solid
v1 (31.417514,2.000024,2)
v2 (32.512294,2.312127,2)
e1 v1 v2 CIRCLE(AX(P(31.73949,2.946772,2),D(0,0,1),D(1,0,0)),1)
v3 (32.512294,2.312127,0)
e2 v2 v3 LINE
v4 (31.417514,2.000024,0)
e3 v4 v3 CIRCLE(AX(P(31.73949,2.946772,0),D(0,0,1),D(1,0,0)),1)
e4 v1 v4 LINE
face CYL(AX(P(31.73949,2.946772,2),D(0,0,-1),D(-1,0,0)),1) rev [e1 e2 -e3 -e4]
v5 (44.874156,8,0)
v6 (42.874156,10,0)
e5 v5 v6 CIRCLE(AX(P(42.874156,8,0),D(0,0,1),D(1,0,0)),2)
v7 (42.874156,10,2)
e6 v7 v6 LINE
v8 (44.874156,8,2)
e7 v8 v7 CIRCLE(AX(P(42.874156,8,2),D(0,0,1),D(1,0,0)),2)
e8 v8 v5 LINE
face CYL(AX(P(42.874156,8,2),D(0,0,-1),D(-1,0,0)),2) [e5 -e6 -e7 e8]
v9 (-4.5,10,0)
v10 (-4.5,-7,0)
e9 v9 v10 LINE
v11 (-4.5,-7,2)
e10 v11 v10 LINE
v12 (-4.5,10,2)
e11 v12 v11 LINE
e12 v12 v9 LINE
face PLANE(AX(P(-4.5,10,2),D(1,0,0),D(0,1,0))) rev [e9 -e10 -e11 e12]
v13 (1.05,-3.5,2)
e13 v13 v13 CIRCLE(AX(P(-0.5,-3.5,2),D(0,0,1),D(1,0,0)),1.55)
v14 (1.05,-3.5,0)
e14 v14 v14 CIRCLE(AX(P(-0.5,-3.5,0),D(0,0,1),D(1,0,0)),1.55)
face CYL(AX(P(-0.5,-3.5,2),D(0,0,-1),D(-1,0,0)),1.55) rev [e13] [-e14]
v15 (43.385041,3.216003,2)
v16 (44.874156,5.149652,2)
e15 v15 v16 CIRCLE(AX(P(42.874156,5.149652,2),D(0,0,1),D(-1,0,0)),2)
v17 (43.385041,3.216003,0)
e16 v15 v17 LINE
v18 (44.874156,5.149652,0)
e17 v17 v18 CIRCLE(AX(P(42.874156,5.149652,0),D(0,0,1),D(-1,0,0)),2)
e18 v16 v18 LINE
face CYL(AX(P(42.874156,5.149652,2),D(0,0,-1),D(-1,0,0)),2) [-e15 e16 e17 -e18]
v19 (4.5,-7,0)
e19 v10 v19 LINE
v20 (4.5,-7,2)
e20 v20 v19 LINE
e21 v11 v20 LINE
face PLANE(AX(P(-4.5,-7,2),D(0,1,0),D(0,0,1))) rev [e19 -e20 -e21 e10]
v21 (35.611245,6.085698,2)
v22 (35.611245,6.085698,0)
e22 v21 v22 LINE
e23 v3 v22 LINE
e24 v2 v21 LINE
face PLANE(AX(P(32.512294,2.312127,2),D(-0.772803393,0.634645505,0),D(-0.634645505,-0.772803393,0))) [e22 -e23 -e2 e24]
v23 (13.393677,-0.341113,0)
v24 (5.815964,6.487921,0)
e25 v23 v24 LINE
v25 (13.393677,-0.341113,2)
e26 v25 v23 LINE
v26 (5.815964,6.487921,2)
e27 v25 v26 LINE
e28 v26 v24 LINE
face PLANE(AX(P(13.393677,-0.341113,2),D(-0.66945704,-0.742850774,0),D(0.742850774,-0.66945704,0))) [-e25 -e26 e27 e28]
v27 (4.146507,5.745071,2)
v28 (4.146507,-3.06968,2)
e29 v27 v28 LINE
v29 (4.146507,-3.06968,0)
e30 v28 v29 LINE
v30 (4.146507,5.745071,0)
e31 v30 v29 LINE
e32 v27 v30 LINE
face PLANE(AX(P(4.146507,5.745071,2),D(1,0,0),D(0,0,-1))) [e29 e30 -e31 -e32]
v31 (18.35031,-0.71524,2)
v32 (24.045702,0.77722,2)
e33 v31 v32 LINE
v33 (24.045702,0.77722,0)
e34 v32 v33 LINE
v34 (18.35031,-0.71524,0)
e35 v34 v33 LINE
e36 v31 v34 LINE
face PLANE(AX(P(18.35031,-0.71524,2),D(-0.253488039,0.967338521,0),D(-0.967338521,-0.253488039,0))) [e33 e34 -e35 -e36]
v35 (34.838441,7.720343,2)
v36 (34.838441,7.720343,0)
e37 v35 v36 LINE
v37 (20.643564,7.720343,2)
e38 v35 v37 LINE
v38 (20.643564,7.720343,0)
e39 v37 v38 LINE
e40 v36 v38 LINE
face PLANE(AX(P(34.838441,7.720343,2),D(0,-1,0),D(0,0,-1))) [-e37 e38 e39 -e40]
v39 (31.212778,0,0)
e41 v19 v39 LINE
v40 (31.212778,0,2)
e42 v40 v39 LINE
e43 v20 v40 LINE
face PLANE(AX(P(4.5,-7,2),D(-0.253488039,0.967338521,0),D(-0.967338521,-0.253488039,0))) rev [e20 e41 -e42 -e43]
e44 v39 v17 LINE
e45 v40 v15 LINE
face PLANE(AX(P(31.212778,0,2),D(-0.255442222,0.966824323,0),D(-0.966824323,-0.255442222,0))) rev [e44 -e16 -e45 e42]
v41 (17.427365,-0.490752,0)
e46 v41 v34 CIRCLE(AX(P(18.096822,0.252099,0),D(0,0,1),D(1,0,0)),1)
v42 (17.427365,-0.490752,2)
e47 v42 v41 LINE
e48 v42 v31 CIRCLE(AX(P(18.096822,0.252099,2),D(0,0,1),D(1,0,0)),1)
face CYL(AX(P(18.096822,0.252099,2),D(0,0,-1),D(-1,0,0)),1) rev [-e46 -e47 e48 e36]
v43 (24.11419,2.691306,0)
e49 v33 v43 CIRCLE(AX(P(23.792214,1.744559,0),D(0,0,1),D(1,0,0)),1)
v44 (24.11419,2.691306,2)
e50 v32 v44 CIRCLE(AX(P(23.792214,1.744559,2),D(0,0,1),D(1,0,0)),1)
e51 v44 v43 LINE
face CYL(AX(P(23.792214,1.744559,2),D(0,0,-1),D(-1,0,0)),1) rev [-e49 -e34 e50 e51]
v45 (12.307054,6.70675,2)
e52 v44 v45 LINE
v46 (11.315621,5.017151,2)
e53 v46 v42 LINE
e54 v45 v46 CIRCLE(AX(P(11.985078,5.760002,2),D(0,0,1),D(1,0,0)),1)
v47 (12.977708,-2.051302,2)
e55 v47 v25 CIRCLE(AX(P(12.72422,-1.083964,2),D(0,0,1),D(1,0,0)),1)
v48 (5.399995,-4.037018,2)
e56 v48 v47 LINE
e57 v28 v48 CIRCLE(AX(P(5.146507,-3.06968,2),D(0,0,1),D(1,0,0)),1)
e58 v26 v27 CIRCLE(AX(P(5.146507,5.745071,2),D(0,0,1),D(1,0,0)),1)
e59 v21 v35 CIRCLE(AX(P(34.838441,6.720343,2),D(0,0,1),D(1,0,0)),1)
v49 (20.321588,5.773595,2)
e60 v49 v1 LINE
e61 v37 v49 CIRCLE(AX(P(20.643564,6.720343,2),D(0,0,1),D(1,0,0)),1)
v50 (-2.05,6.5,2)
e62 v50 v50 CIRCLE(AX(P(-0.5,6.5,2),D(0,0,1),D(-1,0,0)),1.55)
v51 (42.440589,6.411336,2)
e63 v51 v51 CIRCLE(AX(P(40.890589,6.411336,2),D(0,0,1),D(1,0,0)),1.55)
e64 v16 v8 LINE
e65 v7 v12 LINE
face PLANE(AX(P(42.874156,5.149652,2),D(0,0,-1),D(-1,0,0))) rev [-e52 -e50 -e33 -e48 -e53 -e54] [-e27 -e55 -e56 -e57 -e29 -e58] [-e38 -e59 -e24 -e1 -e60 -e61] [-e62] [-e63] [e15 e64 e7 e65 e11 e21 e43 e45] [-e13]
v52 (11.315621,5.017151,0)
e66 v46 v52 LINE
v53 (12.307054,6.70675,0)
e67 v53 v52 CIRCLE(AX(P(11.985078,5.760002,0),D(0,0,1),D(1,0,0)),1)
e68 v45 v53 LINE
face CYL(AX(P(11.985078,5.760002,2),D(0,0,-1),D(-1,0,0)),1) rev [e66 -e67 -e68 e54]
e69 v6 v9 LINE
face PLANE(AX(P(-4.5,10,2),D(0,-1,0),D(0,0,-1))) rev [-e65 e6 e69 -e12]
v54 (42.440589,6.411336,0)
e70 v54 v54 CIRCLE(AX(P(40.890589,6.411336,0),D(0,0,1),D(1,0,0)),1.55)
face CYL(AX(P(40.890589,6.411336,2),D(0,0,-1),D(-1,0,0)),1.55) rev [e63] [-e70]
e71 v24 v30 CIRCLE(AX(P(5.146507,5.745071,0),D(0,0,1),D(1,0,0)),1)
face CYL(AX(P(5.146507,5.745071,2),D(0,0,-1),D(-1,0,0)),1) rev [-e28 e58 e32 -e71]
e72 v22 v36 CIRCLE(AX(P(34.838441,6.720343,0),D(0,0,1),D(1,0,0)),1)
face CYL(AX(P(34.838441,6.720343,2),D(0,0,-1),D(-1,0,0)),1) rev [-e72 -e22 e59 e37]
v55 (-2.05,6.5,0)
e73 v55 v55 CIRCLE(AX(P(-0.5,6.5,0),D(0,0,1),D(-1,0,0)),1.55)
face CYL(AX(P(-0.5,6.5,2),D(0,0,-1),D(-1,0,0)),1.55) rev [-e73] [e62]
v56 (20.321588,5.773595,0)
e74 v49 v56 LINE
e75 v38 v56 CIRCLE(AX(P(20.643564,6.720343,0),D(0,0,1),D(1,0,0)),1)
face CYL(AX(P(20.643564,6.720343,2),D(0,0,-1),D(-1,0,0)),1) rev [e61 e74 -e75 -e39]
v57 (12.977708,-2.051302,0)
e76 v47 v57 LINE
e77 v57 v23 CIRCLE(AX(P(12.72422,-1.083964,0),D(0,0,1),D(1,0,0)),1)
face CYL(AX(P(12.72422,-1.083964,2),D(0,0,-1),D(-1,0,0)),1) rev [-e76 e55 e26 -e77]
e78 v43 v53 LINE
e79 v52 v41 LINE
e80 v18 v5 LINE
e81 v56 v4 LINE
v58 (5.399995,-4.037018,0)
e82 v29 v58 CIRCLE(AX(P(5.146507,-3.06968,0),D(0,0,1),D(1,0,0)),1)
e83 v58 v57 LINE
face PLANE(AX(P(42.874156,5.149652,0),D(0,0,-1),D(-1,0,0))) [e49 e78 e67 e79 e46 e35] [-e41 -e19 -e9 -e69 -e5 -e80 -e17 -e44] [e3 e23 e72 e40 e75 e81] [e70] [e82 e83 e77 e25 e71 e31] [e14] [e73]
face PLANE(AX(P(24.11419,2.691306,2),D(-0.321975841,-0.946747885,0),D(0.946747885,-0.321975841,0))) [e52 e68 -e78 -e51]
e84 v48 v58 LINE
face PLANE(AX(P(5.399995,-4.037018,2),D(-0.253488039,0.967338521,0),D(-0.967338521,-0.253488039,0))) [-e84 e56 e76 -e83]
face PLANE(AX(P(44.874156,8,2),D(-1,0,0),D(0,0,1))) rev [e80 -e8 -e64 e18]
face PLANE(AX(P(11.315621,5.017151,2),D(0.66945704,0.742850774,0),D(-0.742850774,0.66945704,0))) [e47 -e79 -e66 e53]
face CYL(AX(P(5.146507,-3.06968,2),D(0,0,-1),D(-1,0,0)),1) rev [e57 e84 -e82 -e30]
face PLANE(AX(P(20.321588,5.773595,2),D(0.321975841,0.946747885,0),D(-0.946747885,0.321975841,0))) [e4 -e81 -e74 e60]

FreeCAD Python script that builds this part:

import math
import FreeCAD as App
import Part
import Sketcher
Q = App.Units.Quantity

doc = App.newDocument("Part")
params = doc.addObject("Spreadsheet::Sheet", "Params")
for row, (alias, value) in enumerate([
    ("sketch1_radius", "2 mm"),
    ("sketch1_radius2", "2 mm"),
    ("sketch1_radius3", "1 mm"),
    ("sketch1_radius4", "1 mm"),
    ("sketch1_radius5", "1 mm"),
    ("pad1_length", "2 mm"),
], start=1):
    params.set(f"A{row}", alias)
    params.set(f"B{row}", "=" + value)
    params.setAlias(f"B{row}", alias)

body = doc.addObject("PartDesign::Body", "Body")

# Sketch on XY plane
sketch1 = body.newObject("Sketcher::SketchObject", "Sketch")
sketch1.AttachmentSupport = (doc.getObject("XY_Plane"), [""])
sketch1.MapMode = "FlatFace"
sketch1.addGeometry(Part.LineSegment(App.Vector(42.874156, 10, 0), App.Vector(-4.5, 10, 0)), False)
sketch1.addGeometry(Part.LineSegment(App.Vector(-4.5, 10, 0), App.Vector(-4.5, -7, 0)), False)
sketch1.addGeometry(Part.LineSegment(App.Vector(-4.5, -7, 0), App.Vector(4.5, -7, 0)), False)
sketch1.addGeometry(Part.LineSegment(App.Vector(4.5, -7, 0), App.Vector(31.212778, 0, 0)), False)
sketch1.addGeometry(Part.LineSegment(App.Vector(31.212778, 0, 0), App.Vector(43.385041, 3.216003, 0)), False)
sketch1.addGeometry(Part.ArcOfCircle(Part.Circle(App.Vector(42.874156, 5.149652, 0), App.Vector(0, 0, 1), 2), math.radians(-75.20021), math.radians(0)), False)
sketch1.addGeometry(Part.LineSegment(App.Vector(44.874156, 5.149652, 0), App.Vector(44.874156, 8, 0)), False)
sketch1.addGeometry(Part.ArcOfCircle(Part.Circle(App.Vector(42.874156, 8, 0), App.Vector(0, 0, 1), 2), math.radians(0), math.radians(90)), False)
sketch1.addGeometry(Part.Circle(App.Vector(-0.5, -3.5, 0), App.Vector(0, 0, 1), 1.55), False)
sketch1.addGeometry(Part.ArcOfCircle(Part.Circle(App.Vector(5.146507, 5.745071, 0), App.Vector(0, 0, 1), 1), math.radians(47.974827), math.radians(180)), False)
sketch1.addGeometry(Part.LineSegment(App.Vector(5.815964, 6.487921, 0), App.Vector(13.393677, -0.341113, 0)), False)
sketch1.addGeometry(Part.ArcOfCircle(Part.Circle(App.Vector(12.72422, -1.083964, 0), App.Vector(0, 0, 1), 1), math.radians(-75.315987), math.radians(47.974827)), False)
sketch1.addGeometry(Part.LineSegment(App.Vector(12.977708, -2.051302, 0), App.Vector(5.399995, -4.037018, 0)), False)
sketch1.addGeometry(Part.ArcOfCircle(Part.Circle(App.Vector(5.146507, -3.06968, 0), App.Vector(0, 0, 1), 1), math.radians(180), math.radians(284.684013)), False)
sketch1.addGeometry(Part.LineSegment(App.Vector(4.146507, -3.06968, 0), App.Vector(4.146507, 5.745071, 0)), False)
sketch1.addGeometry(Part.Circle(App.Vector(40.890589, 6.411336, 0), App.Vector(0, 0, 1), 1.55), False)
sketch1.addGeometry(Part.ArcOfCircle(Part.Circle(App.Vector(20.643564, 6.720343, 0), App.Vector(0, 0, 1), 1), math.radians(90), math.radians(251.217542)), False)
sketch1.addGeometry(Part.LineSegment(App.Vector(20.643564, 7.720343, 0), App.Vector(34.838441, 7.720343, 0)), False)
sketch1.addGeometry(Part.ArcOfCircle(Part.Circle(App.Vector(34.838441, 6.720343, 0), App.Vector(0, 0, 1), 1), math.radians(-39.393697), math.radians(90)), False)
sketch1.addGeometry(Part.LineSegment(App.Vector(35.611245, 6.085698, 0), App.Vector(32.512294, 2.312127, 0)), False)
sketch1.addGeometry(Part.ArcOfCircle(Part.Circle(App.Vector(31.73949, 2.946772, 0), App.Vector(0, 0, 1), 1), math.radians(-108.782458), math.radians(-39.393697)), False)
sketch1.addGeometry(Part.LineSegment(App.Vector(31.417514, 2.000024, 0), App.Vector(20.321588, 5.773595, 0)), False)
sketch1.addGeometry(Part.ArcOfCircle(Part.Circle(App.Vector(11.985078, 5.760002, 0), App.Vector(0, 0, 1), 1), math.radians(71.217542), math.radians(227.974827)), False)
sketch1.addGeometry(Part.LineSegment(App.Vector(12.307054, 6.70675, 0), App.Vector(24.11419, 2.691306, 0)), False)
sketch1.addGeometry(Part.ArcOfCircle(Part.Circle(App.Vector(23.792214, 1.744559, 0), App.Vector(0, 0, 1), 1), math.radians(-75.315987), math.radians(71.217543)), False)
sketch1.addGeometry(Part.LineSegment(App.Vector(24.045702, 0.77722, 0), App.Vector(18.35031, -0.71524, 0)), False)
sketch1.addGeometry(Part.ArcOfCircle(Part.Circle(App.Vector(18.096822, 0.252099, 0), App.Vector(0, 0, 1), 1), math.radians(-132.025173), math.radians(-75.315987)), False)
sketch1.addGeometry(Part.LineSegment(App.Vector(17.427365, -0.490752, 0), App.Vector(11.315621, 5.017151, 0)), False)
sketch1.addGeometry(Part.Circle(App.Vector(-0.5, 6.5, 0), App.Vector(0, 0, 1), 1.55), False)
sketch1.addConstraint(Sketcher.Constraint("Coincident", 0, 2, 1, 1))
sketch1.addConstraint(Sketcher.Constraint("Coincident", 1, 2, 2, 1))
sketch1.addConstraint(Sketcher.Constraint("Coincident", 2, 2, 3, 1))
sketch1.addConstraint(Sketcher.Constraint("Coincident", 3, 2, 4, 1))
sketch1.addConstraint(Sketcher.Constraint("Coincident", 4, 2, 5, 1))
sketch1.addConstraint(Sketcher.Constraint("Coincident", 5, 2, 6, 1))
sketch1.addConstraint(Sketcher.Constraint("Coincident", 6, 2, 7, 1))
sketch1.addConstraint(Sketcher.Constraint("Coincident", 7, 2, 0, 1))
sketch1.addConstraint(Sketcher.Constraint("Coincident", 9, 1, 10, 1))
sketch1.addConstraint(Sketcher.Constraint("Coincident", 10, 2, 11, 2))
sketch1.addConstraint(Sketcher.Constraint("Coincident", 11, 1, 12, 1))
sketch1.addConstraint(Sketcher.Constraint("Coincident", 12, 2, 13, 2))
sketch1.addConstraint(Sketcher.Constraint("Coincident", 13, 1, 14, 1))
sketch1.addConstraint(Sketcher.Constraint("Coincident", 14, 2, 9, 2))
sketch1.addConstraint(Sketcher.Constraint("Coincident", 16, 1, 17, 1))
sketch1.addConstraint(Sketcher.Constraint("Coincident", 17, 2, 18, 2))
sketch1.addConstraint(Sketcher.Constraint("Coincident", 18, 1, 19, 1))
sketch1.addConstraint(Sketcher.Constraint("Coincident", 19, 2, 20, 2))
sketch1.addConstraint(Sketcher.Constraint("Coincident", 20, 1, 21, 1))
sketch1.addConstraint(Sketcher.Constraint("Coincident", 21, 2, 16, 2))
sketch1.addConstraint(Sketcher.Constraint("Coincident", 22, 1, 23, 1))
sketch1.addConstraint(Sketcher.Constraint("Coincident", 23, 2, 24, 2))
sketch1.addConstraint(Sketcher.Constraint("Coincident", 24, 1, 25, 1))
sketch1.addConstraint(Sketcher.Constraint("Coincident", 25, 2, 26, 2))
sketch1.addConstraint(Sketcher.Constraint("Coincident", 26, 1, 27, 1))
sketch1.addConstraint(Sketcher.Constraint("Coincident", 27, 2, 22, 2))
sketch1.addConstraint(Sketcher.Constraint("Horizontal", 0))
sketch1.addConstraint(Sketcher.Constraint("Vertical", 1))
sketch1.addConstraint(Sketcher.Constraint("Horizontal", 2))
sketch1.addConstraint(Sketcher.Constraint("Vertical", 6))
sketch1.addConstraint(Sketcher.Constraint("Vertical", 14))
sketch1.addConstraint(Sketcher.Constraint("Horizontal", 17))
sketch1.addConstraint(Sketcher.Constraint("PointOnObject", 3, 2, -1))
sketch1.addConstraint(Sketcher.Constraint("Radius", 5, Q("2 mm")))
sketch1.addConstraint(Sketcher.Constraint("Radius", 7, Q("2 mm")))
sketch1.addConstraint(Sketcher.Constraint("Radius", 9, Q("1 mm")))
sketch1.addConstraint(Sketcher.Constraint("Radius", 11, Q("1 mm")))
sketch1.addConstraint(Sketcher.Constraint("Radius", 13, Q("1 mm")))
sketch1.addConstraint(Sketcher.Constraint("Radius", 16, Q("1 mm")))
sketch1.addConstraint(Sketcher.Constraint("Radius", 18, Q("1 mm")))
sketch1.addConstraint(Sketcher.Constraint("Radius", 20, Q("1 mm")))
sketch1.addConstraint(Sketcher.Constraint("Radius", 22, Q("1 mm")))
sketch1.addConstraint(Sketcher.Constraint("Radius", 24, Q("1 mm")))
sketch1.addConstraint(Sketcher.Constraint("Radius", 26, Q("1 mm")))
sketch1.addConstraint(Sketcher.Constraint("Diameter", 8, Q("3.1 mm")))
sketch1.addConstraint(Sketcher.Constraint("Diameter", 15, Q("3.1 mm")))
sketch1.addConstraint(Sketcher.Constraint("Diameter", 28, Q("3.1 mm")))
sketch1.addConstraint(Sketcher.Constraint("DistanceX", 2, 1, 2, 2, Q("9 mm")))
sketch1.addConstraint(Sketcher.Constraint("DistanceY", 1, 2, 1, 1, Q("17 mm")))
sketch1.addConstraint(Sketcher.Constraint("DistanceY", -1, 1, 7, 3, Q("8 mm")))
sketch1.addConstraint(Sketcher.Constraint("DistanceY", -1, 1, 6, 2, Q("8 mm")))
sketch1.addConstraint(Sketcher.Constraint("DistanceY", 8, 3, 28, 3, Q("10 mm")))
sketch1.addConstraint(Sketcher.Constraint("DistanceX", 0, 2, 28, 3, Q("4 mm")))
sketch1.addConstraint(Sketcher.Constraint("DistanceX", 0, 2, 8, 3, Q("4 mm")))
sketch1.addConstraint(Sketcher.Constraint("DistanceX", 7, 2, 6, 2, Q("2 mm")))
sketch1.addConstraint(Sketcher.Constraint("DistanceX", 8, 3, -1, 1, Q("0.5 mm")))
sketch1.addConstraint(Sketcher.Constraint("DistanceY", 8, 3, -1, 1, Q("3.5 mm")))
sketch1.addConstraint(Sketcher.Constraint("DistanceY", -1, 1, 22, 3, Q("5.760002 mm")))
sketch1.addConstraint(Sketcher.Constraint("DistanceY", 6, 1, 6, 2, Q("2.850348 mm")))
sketch1.addConstraint(Sketcher.Constraint("DistanceY", 14, 1, 14, 2, Q("8.81475 mm")))
sketch1.addConstraint(Sketcher.Constraint("DistanceY", -1, 1, 26, 3, Q("0.252099 mm")))
sketch1.addConstraint(Sketcher.Constraint("DistanceY", 11, 3, 15, 3, Q("7.4953 mm")))
sketch1.addConstraint(Sketcher.Constraint("DistanceX", 20, 3, 15, 3, Q("9.151099 mm")))
sketch1.addConstraint(Sketcher.Constraint("DistanceX", 18, 3, 4, 2, Q("8.5466 mm")))
sketch1.addConstraint(Sketcher.Constraint("DistanceY", 13, 3, 9, 1, Q("9.557601 mm")))
sketch1.addConstraint(Sketcher.Constraint("DistanceX", 22, 3, 10, 2, Q("1.408598 mm")))
sketch1.addConstraint(Sketcher.Constraint("DistanceY", 11, 1, 26, 3, Q("2.303401 mm")))
sketch1.addConstraint(Sketcher.Constraint("DistanceX", 13, 3, 11, 1, Q("7.831201 mm")))
sketch1.addConstraint(Sketcher.Constraint("DistanceY", 27, 2, 22, 1, Q("1.689599 mm")))
sketch1.addConstraint(Sketcher.Constraint("Distance", 12, Q("7.833569 mm")))
sketch1.addConstraint(Sketcher.Constraint("Distance", 27, Q("8.227418 mm")))
sketch1.addConstraint(Sketcher.Constraint("DistanceX", 0, 2, 0, 1, Q("47.374156 mm")))
sketch1.addConstraint(Sketcher.Constraint("DistanceX", 17, 1, 17, 2, Q("14.194878 mm")))
sketch1.addConstraint(Sketcher.Constraint("DistanceY", -1, 1, 5, 3, Q("5.149652 mm")))
sketch1.addConstraint(Sketcher.Constraint("DistanceY", -1, 1, 9, 3, Q("5.745071 mm")))
sketch1.addConstraint(Sketcher.Constraint("DistanceX", -1, 1, 11, 3, Q("12.72422 mm")))
sketch1.addConstraint(Sketcher.Constraint("DistanceY", 13, 3, -1, 1, Q("3.06968 mm")))
sketch1.addConstraint(Sketcher.Constraint("DistanceX", -1, 1, 15, 3, Q("40.890589 mm")))
sketch1.addConstraint(Sketcher.Constraint("DistanceX", -1, 1, 18, 3, Q("34.838441 mm")))
sketch1.addConstraint(Sketcher.Constraint("DistanceX", -1, 1, 22, 3, Q("11.985078 mm")))
sketch1.addConstraint(Sketcher.Constraint("DistanceY", -1, 1, 24, 3, Q("1.744559 mm")))
sketch1.addConstraint(Sketcher.Constraint("DistanceY", 13, 1, -1, 1, Q("3.06968 mm")))
sketch1.addConstraint(Sketcher.Constraint("DistanceX", -1, 1, 17, 2, Q("34.838441 mm")))
sketch1.addConstraint(Sketcher.Constraint("DistanceY", -1, 1, 22, 1, Q("6.70675 mm")))
sketch1.addConstraint(Sketcher.Constraint("DistanceX", -1, 1, 23, 2, Q("24.11419 mm")))
sketch1.addConstraint(Sketcher.Constraint("DistanceY", -1, 1, 24, 1, Q("0.77722 mm")))
sketch1.addConstraint(Sketcher.Constraint("DistanceX", -1, 1, 25, 2, Q("18.35031 mm")))
sketch1.addConstraint(Sketcher.Constraint("DistanceY", 25, 2, -1, 1, Q("0.71524 mm")))
sketch1.addConstraint(Sketcher.Constraint("DistanceX", 9, 3, 5, 3, Q("37.72765 mm")))
sketch1.addConstraint(Sketcher.Constraint("DistanceY", 5, 3, 18, 3, Q("1.570692 mm")))
sketch1.addConstraint(Sketcher.Constraint("DistanceY", 20, 3, 18, 3, Q("3.773571 mm")))
sketch1.addConstraint(Sketcher.Constraint("DistanceX", 16, 3, 24, 3, Q("3.14865 mm")))
sketch1.addConstraint(Sketcher.Constraint("DistanceX", 26, 3, 24, 3, Q("5.695392 mm")))
sketch1.addConstraint(Sketcher.Constraint("DistanceX", 3, 2, 15, 3, Q("9.677811 mm")))
sketch1.addConstraint(Sketcher.Constraint("DistanceY", 18, 1, 15, 3, Q("0.325638 mm")))
sketch1.addConstraint(Sketcher.Constraint("DistanceX", 19, 2, 18, 1, Q("3.098951 mm")))
sketch1.addConstraint(Sketcher.Constraint("DistanceX", 20, 1, 19, 2, Q("1.094779 mm")))
sketch1.addConstraint(Sketcher.Constraint("DistanceX", 22, 3, 21, 2, Q("8.336509 mm")))
sketch1.setExpression("Constraints[33]", "Params.sketch1_radius")
sketch1.setExpression("Constraints[34]", "Params.sketch1_radius2")
sketch1.setExpression("Constraints[35]", "Params.sketch1_radius3")
sketch1.setExpression("Constraints[36]", "Params.sketch1_radius4")
sketch1.setExpression("Constraints[37]", "Params.sketch1_radius5")
pad1 = body.newObject("PartDesign::Pad", "Pad")
pad1.Profile = sketch1
pad1.setExpression("Length", "Params.pad1_length")

doc.recompute()
